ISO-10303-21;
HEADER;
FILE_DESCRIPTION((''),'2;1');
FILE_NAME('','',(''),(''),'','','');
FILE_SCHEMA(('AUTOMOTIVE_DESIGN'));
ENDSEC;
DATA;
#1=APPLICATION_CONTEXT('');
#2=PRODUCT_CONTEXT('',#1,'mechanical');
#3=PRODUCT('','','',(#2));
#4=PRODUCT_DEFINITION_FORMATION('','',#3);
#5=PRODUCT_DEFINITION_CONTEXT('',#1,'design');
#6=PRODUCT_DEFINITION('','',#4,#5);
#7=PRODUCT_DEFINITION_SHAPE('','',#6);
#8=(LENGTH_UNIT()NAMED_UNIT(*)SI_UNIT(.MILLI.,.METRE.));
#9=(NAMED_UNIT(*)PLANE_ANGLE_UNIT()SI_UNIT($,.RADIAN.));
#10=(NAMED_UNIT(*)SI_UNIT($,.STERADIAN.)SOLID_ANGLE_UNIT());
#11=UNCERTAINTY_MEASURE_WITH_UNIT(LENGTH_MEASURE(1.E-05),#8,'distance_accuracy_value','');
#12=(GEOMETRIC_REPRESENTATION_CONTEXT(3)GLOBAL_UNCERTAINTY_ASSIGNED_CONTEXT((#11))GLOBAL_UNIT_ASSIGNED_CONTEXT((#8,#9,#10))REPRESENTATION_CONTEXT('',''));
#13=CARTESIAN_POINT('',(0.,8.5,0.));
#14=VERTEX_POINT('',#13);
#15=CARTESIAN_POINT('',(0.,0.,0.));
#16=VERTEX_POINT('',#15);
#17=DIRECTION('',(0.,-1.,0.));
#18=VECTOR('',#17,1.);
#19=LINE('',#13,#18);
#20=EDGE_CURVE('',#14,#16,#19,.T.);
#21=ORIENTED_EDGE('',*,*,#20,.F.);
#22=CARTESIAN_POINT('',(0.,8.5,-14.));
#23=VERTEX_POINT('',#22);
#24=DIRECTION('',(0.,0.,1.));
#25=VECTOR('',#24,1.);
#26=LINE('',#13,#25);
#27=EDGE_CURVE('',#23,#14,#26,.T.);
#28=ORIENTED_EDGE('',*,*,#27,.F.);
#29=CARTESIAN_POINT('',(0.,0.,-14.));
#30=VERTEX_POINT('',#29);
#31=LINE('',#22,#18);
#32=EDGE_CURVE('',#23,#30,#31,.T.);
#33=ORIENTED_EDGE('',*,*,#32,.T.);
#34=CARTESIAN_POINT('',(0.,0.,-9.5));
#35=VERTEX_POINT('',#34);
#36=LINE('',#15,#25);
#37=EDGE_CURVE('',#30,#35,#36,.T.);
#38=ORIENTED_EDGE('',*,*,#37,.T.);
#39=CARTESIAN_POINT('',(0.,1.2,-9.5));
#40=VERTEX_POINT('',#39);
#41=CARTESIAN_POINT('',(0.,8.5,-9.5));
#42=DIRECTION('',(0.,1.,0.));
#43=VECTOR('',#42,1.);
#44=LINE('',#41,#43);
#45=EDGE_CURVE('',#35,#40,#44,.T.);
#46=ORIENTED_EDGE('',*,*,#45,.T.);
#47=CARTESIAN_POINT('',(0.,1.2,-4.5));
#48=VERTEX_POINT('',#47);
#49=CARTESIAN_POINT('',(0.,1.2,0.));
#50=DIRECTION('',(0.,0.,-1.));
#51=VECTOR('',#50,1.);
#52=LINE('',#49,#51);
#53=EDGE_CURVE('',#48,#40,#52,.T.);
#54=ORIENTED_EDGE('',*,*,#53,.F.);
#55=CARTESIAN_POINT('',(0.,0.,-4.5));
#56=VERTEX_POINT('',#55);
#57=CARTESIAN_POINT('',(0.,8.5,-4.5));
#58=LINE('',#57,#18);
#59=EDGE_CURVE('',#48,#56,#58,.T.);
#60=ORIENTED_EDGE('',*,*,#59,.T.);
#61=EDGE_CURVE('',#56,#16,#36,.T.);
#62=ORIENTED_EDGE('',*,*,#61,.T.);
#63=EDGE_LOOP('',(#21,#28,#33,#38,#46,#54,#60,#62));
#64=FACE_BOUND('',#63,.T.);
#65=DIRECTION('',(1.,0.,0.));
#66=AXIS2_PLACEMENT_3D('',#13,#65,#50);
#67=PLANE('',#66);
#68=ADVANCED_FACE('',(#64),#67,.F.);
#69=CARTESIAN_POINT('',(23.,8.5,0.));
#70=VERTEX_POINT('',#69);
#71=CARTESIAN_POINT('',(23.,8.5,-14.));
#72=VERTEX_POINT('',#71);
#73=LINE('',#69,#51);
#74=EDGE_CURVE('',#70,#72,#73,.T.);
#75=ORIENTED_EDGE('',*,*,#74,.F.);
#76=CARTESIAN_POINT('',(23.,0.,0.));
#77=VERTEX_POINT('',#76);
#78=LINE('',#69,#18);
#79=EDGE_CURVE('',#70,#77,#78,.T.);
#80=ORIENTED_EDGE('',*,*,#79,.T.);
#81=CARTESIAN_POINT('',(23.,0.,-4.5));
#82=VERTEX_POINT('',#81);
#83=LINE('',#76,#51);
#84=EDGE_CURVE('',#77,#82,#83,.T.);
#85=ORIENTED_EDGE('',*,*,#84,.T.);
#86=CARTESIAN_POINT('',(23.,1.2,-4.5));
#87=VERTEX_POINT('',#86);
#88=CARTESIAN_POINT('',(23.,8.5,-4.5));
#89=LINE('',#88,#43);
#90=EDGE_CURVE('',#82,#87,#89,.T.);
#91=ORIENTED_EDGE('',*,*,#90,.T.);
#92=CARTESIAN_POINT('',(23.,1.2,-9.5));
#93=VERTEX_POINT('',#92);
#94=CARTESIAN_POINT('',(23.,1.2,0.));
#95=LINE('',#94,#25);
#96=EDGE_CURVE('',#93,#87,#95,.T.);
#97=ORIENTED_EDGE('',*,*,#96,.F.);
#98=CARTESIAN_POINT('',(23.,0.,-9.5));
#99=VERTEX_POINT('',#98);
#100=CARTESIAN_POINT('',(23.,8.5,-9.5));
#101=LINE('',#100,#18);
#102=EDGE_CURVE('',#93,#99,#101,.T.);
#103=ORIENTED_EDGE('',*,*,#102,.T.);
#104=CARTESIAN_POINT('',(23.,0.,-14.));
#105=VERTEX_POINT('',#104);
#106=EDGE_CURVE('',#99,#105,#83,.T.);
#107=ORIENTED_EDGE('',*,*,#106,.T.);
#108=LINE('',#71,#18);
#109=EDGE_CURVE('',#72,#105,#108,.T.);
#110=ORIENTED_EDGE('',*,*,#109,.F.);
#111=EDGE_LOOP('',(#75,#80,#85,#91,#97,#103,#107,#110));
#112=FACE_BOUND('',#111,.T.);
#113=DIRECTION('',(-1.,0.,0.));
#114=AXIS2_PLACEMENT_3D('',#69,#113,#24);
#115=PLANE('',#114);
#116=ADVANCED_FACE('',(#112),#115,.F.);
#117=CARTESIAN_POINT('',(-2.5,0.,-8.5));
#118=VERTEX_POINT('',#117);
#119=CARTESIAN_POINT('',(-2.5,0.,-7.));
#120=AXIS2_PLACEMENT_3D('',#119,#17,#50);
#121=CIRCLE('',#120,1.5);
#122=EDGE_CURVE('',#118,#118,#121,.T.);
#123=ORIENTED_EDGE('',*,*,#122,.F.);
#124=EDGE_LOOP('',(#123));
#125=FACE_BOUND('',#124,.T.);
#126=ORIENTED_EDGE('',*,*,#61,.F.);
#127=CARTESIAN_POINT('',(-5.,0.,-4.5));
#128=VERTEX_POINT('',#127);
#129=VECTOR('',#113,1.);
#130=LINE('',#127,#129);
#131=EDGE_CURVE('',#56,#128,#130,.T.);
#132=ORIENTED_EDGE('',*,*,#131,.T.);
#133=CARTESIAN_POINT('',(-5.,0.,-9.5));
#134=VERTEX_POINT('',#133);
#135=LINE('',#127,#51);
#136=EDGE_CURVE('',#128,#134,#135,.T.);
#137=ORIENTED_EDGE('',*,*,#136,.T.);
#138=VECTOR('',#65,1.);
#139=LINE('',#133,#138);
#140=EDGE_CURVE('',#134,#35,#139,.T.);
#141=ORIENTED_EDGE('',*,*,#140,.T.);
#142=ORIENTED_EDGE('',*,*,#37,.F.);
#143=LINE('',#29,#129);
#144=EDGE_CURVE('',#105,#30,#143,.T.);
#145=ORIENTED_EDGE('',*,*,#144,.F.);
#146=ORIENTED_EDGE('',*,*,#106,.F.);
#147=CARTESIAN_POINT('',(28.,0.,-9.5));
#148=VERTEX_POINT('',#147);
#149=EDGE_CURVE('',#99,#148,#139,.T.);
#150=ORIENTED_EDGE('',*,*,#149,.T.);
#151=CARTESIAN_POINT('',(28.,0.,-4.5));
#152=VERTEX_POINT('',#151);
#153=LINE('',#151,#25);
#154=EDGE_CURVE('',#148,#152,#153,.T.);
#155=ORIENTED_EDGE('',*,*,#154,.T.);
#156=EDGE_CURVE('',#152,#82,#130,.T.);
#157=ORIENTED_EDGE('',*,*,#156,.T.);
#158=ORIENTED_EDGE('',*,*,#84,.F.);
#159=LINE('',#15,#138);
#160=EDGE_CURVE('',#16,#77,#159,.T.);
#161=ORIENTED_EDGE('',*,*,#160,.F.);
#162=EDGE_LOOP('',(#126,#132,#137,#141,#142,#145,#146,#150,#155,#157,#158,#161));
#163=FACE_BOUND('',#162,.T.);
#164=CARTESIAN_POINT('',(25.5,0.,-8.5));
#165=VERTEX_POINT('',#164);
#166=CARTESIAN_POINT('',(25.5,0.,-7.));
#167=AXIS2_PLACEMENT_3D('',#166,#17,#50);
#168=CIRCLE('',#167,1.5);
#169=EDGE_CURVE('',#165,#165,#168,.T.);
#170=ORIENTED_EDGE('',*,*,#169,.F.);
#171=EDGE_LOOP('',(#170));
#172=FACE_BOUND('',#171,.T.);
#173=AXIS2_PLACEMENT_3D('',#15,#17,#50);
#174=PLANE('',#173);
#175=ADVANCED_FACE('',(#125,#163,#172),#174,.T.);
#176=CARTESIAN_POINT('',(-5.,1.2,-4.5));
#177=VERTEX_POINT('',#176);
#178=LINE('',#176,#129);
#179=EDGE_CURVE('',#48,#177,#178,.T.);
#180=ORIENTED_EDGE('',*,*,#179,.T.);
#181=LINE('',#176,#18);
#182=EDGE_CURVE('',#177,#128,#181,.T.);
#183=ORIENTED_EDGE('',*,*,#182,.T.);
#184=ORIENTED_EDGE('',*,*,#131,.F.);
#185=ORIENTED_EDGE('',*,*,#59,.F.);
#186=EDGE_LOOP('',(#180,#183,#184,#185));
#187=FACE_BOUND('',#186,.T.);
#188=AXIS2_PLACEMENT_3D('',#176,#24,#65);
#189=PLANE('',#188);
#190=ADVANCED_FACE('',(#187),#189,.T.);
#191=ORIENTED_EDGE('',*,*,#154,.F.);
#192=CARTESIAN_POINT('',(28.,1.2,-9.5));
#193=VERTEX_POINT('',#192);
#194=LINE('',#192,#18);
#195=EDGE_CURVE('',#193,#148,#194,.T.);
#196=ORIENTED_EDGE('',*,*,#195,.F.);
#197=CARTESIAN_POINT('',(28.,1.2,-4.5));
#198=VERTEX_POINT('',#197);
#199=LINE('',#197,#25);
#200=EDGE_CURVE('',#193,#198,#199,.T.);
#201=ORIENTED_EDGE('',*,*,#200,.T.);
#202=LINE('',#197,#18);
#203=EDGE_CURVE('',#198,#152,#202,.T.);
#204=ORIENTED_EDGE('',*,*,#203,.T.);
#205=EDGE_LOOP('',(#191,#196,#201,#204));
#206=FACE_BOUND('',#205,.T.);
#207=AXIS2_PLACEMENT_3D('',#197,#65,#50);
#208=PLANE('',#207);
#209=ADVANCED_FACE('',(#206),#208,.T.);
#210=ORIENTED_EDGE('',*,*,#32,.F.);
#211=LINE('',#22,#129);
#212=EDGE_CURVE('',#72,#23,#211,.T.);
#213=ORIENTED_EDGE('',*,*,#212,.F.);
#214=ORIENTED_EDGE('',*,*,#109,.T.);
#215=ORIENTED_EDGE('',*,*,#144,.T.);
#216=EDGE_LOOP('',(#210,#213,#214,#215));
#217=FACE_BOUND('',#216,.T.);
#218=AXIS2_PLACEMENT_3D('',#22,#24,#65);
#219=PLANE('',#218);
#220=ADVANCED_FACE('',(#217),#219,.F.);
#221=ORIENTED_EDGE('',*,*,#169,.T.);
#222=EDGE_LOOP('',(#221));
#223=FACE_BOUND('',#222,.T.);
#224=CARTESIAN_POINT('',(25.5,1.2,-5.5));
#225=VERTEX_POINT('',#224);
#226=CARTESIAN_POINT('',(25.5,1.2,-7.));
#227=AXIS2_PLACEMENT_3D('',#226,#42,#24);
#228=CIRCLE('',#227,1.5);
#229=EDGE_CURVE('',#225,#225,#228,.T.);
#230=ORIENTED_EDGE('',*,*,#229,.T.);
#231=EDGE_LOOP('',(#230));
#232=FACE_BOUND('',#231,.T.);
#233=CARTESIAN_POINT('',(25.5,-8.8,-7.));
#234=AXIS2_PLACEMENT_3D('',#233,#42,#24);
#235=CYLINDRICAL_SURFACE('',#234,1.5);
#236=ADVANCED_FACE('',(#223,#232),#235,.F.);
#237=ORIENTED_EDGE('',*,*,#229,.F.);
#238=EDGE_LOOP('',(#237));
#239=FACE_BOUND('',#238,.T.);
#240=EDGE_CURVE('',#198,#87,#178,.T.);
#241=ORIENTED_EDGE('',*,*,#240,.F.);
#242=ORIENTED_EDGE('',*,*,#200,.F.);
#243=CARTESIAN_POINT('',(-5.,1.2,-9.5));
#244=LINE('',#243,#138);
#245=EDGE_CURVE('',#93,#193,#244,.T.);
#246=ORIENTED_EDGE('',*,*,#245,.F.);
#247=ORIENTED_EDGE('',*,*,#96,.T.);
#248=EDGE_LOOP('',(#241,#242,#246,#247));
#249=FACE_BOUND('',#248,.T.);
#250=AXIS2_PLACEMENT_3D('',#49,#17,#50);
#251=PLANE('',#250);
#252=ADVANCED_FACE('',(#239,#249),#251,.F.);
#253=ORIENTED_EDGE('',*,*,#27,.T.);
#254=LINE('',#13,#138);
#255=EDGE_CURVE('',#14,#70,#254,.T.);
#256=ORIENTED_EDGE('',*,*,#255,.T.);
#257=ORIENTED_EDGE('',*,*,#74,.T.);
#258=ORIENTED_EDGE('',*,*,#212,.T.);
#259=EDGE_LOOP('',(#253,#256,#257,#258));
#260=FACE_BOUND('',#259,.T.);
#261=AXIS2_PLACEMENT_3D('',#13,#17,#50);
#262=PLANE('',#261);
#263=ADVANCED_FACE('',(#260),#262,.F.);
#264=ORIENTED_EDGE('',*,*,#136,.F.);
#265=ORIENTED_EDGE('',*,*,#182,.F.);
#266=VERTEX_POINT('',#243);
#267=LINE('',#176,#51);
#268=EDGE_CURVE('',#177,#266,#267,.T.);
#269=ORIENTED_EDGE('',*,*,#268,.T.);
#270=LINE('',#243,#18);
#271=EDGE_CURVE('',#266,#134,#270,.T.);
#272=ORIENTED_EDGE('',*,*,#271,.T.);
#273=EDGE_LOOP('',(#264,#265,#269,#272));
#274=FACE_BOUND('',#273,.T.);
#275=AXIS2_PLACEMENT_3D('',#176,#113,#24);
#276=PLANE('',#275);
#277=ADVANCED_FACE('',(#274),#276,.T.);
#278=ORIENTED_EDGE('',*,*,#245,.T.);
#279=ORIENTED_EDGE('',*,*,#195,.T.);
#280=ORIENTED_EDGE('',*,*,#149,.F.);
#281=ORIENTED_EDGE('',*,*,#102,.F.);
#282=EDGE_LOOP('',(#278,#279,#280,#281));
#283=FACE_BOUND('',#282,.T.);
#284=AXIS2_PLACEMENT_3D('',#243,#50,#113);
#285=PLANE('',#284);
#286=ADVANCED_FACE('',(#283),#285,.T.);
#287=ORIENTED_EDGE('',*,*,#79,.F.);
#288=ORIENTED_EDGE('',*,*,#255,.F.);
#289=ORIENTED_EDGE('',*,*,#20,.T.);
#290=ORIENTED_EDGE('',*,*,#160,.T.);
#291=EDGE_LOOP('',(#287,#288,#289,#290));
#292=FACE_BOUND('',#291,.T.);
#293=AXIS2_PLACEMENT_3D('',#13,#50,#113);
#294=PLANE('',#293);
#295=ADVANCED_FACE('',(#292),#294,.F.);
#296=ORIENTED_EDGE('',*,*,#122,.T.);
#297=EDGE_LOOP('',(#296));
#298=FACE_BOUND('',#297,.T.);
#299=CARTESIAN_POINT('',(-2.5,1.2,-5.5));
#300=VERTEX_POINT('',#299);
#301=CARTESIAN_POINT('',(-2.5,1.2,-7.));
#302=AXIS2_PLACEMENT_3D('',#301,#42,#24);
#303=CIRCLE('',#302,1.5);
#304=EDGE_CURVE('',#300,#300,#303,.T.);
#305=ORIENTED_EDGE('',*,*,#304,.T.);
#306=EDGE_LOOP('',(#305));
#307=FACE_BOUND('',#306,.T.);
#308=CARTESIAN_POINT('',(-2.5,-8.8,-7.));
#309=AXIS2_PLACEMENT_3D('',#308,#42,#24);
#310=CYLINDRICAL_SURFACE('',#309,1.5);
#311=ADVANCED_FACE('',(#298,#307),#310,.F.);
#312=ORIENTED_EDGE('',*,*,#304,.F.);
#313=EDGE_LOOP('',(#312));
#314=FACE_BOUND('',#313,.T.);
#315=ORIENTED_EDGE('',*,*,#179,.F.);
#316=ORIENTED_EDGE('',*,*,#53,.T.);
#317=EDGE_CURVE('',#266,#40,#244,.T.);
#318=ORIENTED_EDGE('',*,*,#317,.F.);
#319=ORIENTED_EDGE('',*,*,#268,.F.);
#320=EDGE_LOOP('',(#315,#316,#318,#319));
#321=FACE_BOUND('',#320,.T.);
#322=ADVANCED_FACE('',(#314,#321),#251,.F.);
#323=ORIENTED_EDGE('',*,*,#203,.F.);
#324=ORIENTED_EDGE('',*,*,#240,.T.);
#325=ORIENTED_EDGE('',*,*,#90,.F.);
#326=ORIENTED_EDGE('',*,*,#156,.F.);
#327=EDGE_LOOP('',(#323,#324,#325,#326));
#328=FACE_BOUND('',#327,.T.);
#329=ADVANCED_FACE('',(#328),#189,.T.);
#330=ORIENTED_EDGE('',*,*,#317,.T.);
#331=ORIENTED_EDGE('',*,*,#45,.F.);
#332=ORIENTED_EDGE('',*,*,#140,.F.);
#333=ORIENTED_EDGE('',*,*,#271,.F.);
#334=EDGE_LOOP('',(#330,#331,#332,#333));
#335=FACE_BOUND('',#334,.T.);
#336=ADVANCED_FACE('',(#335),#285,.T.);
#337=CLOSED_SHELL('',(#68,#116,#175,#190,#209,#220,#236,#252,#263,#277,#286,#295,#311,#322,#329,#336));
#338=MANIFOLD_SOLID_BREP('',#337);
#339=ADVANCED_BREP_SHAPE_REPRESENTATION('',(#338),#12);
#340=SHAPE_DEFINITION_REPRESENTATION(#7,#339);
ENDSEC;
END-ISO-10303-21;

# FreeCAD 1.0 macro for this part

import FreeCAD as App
import Part
import Sketcher

V = App.Vector


def add_polygon(sketch, points):
    """Adds a closed chain of lines whose ends are joined by coincident constraints."""
    first, n = sketch.GeometryCount, len(points)
    for a, b in zip(points, points[1:] + points[:1]):
        sketch.addGeometry(Part.LineSegment(App.Vector(*a, 0), App.Vector(*b, 0)), False)
    for i in range(n):
        sketch.addConstraint(Sketcher.Constraint("Coincident", first + i, 2, first + (i + 1) % n, 1))

doc = App.newDocument("Part")
body = doc.addObject("PartDesign::Body", "Body")

sketch1 = body.newObject("Sketcher::SketchObject", "Sketch")
sketch1.AttachmentSupport = (doc.getObject("XZ_Plane"), [""])
sketch1.MapMode = "FlatFace"
add_polygon(sketch1, [(0, -14), (0, 0), (23, 0), (23, -14)])
sketch1.addConstraint([
    Sketcher.Constraint("Vertical", 0),
    Sketcher.Constraint("Horizontal", 1),
    Sketcher.Constraint("Vertical", 2),
    Sketcher.Constraint("Horizontal", 3),
    Sketcher.Constraint("Coincident", 0, 2, -1, 1),
    Sketcher.Constraint("DistanceX", 1, 1, 1, 2, 23.0),
    Sketcher.Constraint("DistanceY", 0, 1, 0, 2, 14.0),
])
pad1 = body.newObject("PartDesign::Pad", "Pad")
pad1.Profile = sketch1
pad1.Length = 8.5
pad1.Reversed = True

sketch2 = body.newObject("Sketcher::SketchObject", "Sketch001")
sketch2.AttachmentSupport = (doc.getObject("XZ_Plane"), [""])
sketch2.MapMode = "FlatFace"
add_polygon(sketch2, [(-5, -4.5), (-5, -9.5), (28, -9.5), (28, -4.5)])
sketch2.addConstraint([
    Sketcher.Constraint("Vertical", 0),
    Sketcher.Constraint("Horizontal", 1),
    Sketcher.Constraint("Vertical", 2),
    Sketcher.Constraint("Horizontal", 3),
    Sketcher.Constraint("DistanceX", 1, 1, 1, 2, 33.0),
    Sketcher.Constraint("DistanceY", 0, 2, 0, 1, 5.0),
    Sketcher.Constraint("DistanceX", 0, 2, -1, 1, 5.0),
    Sketcher.Constraint("DistanceY", 0, 2, -1, 1, 9.5),
])
pad2 = body.newObject("PartDesign::Pad", "Pad001")
pad2.Profile = sketch2
pad2.Length = 1.2
pad2.Reversed = True

sketch3 = body.newObject("Sketcher::SketchObject", "Sketch002")
sketch3.AttachmentSupport = (doc.getObject("XZ_Plane"), [""])
sketch3.MapMode = "FlatFace"
sketch3.AttachmentOffset = App.Placement(V(0, 0, -1.2), App.Rotation())
sketch3.addGeometry([
    Part.Circle(V(-2.5, -7, 0), V(0, 0, 1), 1.5),
    Part.Circle(V(25.5, -7, 0), V(0, 0, 1), 1.5),
], False)
sketch3.addConstraint([
    Sketcher.Constraint("Equal", 0, 1),
    Sketcher.Constraint("Horizontal", 0, 3, 1, 3),
    Sketcher.Constraint("Diameter", 0, 3.0),
    Sketcher.Constraint("DistanceY", 0, 3, -1, 1, 7.0),
    Sketcher.Constraint("DistanceX", 0, 3, 1, 3, 28.0),
    Sketcher.Constraint("DistanceX", 0, 3, -1, 1, 2.5),
])
pocket1 = body.newObject("PartDesign::Pocket", "Pocket")
pocket1.Profile = sketch3
pocket1.Length = 10
pocket1.Reversed = True

doc.recompute()
